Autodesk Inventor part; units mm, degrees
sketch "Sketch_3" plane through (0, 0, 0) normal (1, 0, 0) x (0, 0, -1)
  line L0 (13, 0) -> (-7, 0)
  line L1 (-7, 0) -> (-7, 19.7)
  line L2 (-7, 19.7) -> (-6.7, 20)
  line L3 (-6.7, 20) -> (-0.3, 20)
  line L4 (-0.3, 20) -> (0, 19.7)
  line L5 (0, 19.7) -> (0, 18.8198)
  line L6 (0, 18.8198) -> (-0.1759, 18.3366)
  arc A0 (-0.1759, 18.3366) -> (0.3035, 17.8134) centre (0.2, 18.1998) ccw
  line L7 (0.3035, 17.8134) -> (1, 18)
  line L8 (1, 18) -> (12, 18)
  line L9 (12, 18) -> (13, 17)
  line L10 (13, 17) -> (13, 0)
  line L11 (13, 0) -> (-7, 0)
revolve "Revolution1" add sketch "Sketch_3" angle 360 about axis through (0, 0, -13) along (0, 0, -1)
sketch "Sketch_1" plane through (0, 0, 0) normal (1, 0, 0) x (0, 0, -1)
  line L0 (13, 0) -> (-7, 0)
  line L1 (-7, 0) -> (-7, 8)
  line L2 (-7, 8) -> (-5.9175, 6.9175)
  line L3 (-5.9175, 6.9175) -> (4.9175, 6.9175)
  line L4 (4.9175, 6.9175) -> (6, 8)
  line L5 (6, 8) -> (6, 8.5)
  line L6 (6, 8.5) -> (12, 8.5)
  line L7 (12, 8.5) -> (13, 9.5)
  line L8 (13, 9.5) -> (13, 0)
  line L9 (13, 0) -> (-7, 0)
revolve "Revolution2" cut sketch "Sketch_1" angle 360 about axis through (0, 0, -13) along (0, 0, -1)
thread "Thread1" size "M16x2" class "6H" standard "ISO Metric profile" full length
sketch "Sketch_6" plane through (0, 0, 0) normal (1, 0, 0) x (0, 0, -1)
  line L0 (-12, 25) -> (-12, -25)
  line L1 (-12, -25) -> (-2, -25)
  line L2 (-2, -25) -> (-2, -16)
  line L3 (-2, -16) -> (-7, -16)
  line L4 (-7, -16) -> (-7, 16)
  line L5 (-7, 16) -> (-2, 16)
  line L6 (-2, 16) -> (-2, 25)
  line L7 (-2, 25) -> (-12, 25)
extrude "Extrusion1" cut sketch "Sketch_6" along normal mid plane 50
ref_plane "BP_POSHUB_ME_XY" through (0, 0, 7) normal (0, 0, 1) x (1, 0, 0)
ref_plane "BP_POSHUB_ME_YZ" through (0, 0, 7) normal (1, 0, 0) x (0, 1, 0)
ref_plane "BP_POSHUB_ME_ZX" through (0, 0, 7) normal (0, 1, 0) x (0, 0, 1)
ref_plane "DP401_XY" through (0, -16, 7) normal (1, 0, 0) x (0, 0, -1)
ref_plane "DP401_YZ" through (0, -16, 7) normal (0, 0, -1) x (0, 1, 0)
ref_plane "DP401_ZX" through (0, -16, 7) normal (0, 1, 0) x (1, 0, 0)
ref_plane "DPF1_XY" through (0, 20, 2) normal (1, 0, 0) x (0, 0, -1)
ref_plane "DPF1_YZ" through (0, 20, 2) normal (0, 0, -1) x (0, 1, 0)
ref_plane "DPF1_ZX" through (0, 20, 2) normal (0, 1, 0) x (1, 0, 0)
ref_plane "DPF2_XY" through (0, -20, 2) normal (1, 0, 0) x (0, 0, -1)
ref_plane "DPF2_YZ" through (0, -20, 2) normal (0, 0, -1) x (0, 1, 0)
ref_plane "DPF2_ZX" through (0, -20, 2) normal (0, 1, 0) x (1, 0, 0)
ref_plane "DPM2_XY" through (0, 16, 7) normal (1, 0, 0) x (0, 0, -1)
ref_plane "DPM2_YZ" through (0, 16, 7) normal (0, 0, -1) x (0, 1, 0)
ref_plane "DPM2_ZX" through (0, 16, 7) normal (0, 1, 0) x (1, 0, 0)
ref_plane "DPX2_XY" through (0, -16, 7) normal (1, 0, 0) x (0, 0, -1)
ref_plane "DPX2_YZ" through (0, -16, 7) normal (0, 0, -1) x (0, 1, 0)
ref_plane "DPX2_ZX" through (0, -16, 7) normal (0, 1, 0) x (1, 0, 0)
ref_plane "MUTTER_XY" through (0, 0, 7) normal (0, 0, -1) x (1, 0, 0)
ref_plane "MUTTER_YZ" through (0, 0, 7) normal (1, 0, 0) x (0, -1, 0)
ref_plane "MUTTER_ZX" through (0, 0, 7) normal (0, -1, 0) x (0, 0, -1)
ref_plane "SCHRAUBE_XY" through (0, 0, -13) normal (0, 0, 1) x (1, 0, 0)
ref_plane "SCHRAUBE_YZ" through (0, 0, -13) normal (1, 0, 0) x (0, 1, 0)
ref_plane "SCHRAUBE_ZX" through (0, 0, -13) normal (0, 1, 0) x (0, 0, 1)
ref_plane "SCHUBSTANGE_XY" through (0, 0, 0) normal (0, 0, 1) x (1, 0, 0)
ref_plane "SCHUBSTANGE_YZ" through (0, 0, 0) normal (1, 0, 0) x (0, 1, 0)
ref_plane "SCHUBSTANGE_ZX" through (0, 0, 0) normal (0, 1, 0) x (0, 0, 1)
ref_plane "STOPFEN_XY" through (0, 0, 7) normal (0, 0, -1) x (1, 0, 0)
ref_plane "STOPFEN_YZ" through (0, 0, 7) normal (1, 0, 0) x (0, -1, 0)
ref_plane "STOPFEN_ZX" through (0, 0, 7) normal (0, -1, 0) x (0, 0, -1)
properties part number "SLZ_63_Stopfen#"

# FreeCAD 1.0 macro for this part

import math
import FreeCAD as App
import Part
import Sketcher
from FreeCAD import Vector

doc = App.newDocument("Part")
body = doc.addObject("PartDesign::Body", "Body")

sketch1 = body.newObject("Sketcher::SketchObject", "Sketch")
sketch1.AttachmentSupport = (doc.getObject("YZ_Plane"), [""])
sketch1.MapMode = "FlatFace"
sketch1.addGeometry([
    Part.LineSegment(Vector(0, 7, 0), Vector(0, -13, 0)),
    Part.LineSegment(Vector(0, -13, 0), Vector(17, -13, 0)),
    Part.LineSegment(Vector(17, -13, 0), Vector(18, -12, 0)),
    Part.LineSegment(Vector(18, -12, 0), Vector(18, -1, 0)),
    Part.LineSegment(Vector(18, -1, 0), Vector(17.81, -0.3, 0)),
    Part.ArcOfCircle(Part.Circle(Vector(18.2, -0.2, 0), Vector(0, 0, 1), 0.4), math.radians(70), math.radians(195)),
    Part.LineSegment(Vector(18.34, 0.18, 0), Vector(18.82, 0, 0)),
    Part.LineSegment(Vector(18.82, 0, 0), Vector(19.7, 0, 0)),
    Part.LineSegment(Vector(19.7, 0, 0), Vector(20, 0.3, 0)),
    Part.LineSegment(Vector(20, 0.3, 0), Vector(20, 6.7, 0)),
    Part.LineSegment(Vector(20, 6.7, 0), Vector(19.7, 7, 0)),
    Part.LineSegment(Vector(19.7, 7, 0), Vector(0, 7, 0)),
], False)
sketch1.addConstraint([
    Sketcher.Constraint("Coincident", 0, 2, 1, 1),
    Sketcher.Constraint("Coincident", 1, 2, 2, 1),
    Sketcher.Constraint("Coincident", 2, 2, 3, 1),
    Sketcher.Constraint("Coincident", 3, 2, 4, 1),
    Sketcher.Constraint("Tangent", 4, 2, 5, 2),
    Sketcher.Constraint("Tangent", 5, 1, 6, 1),
    Sketcher.Constraint("Coincident", 6, 2, 7, 1),
    Sketcher.Constraint("Coincident", 7, 2, 8, 1),
    Sketcher.Constraint("Coincident", 8, 2, 9, 1),
    Sketcher.Constraint("Coincident", 9, 2, 10, 1),
    Sketcher.Constraint("Coincident", 10, 2, 11, 1),
    Sketcher.Constraint("Coincident", 11, 2, 0, 1),
    Sketcher.Constraint("Vertical", 0),
    Sketcher.Constraint("Horizontal", 1),
    Sketcher.Constraint("Vertical", 3),
    Sketcher.Constraint("Horizontal", 7),
    Sketcher.Constraint("Vertical", 9),
    Sketcher.Constraint("Horizontal", 11),
    Sketcher.Constraint("PointOnObject", 0, 2, -2),
    Sketcher.Constraint("PointOnObject", 6, 2, -1),
    Sketcher.Constraint("Parallel", 2, 8),
    Sketcher.Constraint("Perpendicular", 8, 10),
    Sketcher.Constraint("Vertical", 7, 2, 10, 2),
    Sketcher.Constraint("Equal", 8, 10),
    Sketcher.Constraint("Radius", 5, 0.4),
    Sketcher.Constraint("DistanceX", 1, 1, 1, 2, 17.0),
    Sketcher.Constraint("DistanceY", 0, 2, 0, 1, 20.0),
    Sketcher.Constraint("DistanceY", 3, 1, 3, 2, 11.0),
    Sketcher.Constraint("DistanceX", 11, 2, 11, 1, 19.7),
    Sketcher.Constraint("DistanceY", 9, 1, 9, 2, 6.4),
    Sketcher.Constraint("DistanceY", 0, 2, -1, 1, 13.0),
    Sketcher.Constraint("DistanceX", -1, 1, 2, 2, 18.0),
    Sketcher.Constraint("DistanceY", 5, 3, -1, 1, 0.2),
    Sketcher.Constraint("DistanceX", 5, 3, 6, 2, 0.62),
    Sketcher.Constraint("Distance", 4, 0.721),
])
revolution = body.newObject("PartDesign::Revolution", "Revolution")
revolution.Profile = sketch1
revolution.ReferenceAxis = (sketch1, ["V_Axis"])
revolution.Angle = 360

sketch2 = body.newObject("Sketcher::SketchObject", "Sketch001")
sketch2.AttachmentSupport = (doc.getObject("YZ_Plane"), [""])
sketch2.MapMode = "FlatFace"
sketch2.addGeometry([
    Part.LineSegment(Vector(0, 7, 0), Vector(0, -13, 0)),
    Part.LineSegment(Vector(0, -13, 0), Vector(9.5, -13, 0)),
    Part.LineSegment(Vector(9.5, -13, 0), Vector(8.5, -12, 0)),
    Part.LineSegment(Vector(8.5, -12, 0), Vector(8.5, -6, 0)),
    Part.LineSegment(Vector(8.5, -6, 0), Vector(8, -6, 0)),
    Part.LineSegment(Vector(8, -6, 0), Vector(6.9, -4.9, 0)),
    Part.LineSegment(Vector(6.9, -4.9, 0), Vector(6.9, 5.9, 0)),
    Part.LineSegment(Vector(6.9, 5.9, 0), Vector(8, 7, 0)),
    Part.LineSegment(Vector(8, 7, 0), Vector(0, 7, 0)),
], False)
sketch2.addConstraint([
    Sketcher.Constraint("Coincident", 0, 2, 1, 1),
    Sketcher.Constraint("Coincident", 1, 2, 2, 1),
    Sketcher.Constraint("Coincident", 2, 2, 3, 1),
    Sketcher.Constraint("Coincident", 3, 2, 4, 1),
    Sketcher.Constraint("Coincident", 4, 2, 5, 1),
    Sketcher.Constraint("Coincident", 5, 2, 6, 1),
    Sketcher.Constraint("Coincident", 6, 2, 7, 1),
    Sketcher.Constraint("Coincident", 7, 2, 8, 1),
    Sketcher.Constraint("Coincident", 8, 2, 0, 1),
    Sketcher.Constraint("Vertical", 0),
    Sketcher.Constraint("Horizontal", 1),
    Sketcher.Constraint("Vertical", 3),
    Sketcher.Constraint("Horizontal", 4),
    Sketcher.Constraint("Vertical", 6),
    Sketcher.Constraint("Horizontal", 8),
    Sketcher.Constraint("PointOnObject", 0, 2, -2),
    Sketcher.Constraint("Parallel", 2, 5),
    Sketcher.Constraint("Perpendicular", 5, 7),
    Sketcher.Constraint("Vertical", 4, 2, 7, 2),
    Sketcher.Constraint("Equal", 5, 7),
    Sketcher.Constraint("DistanceX", 8, 2, 8, 1, 8.0),
    Sketcher.Constraint("DistanceY", 0, 2, 0, 1, 20.0),
    Sketcher.Constraint("DistanceY", 3, 1, 3, 2, 6.0),
    Sketcher.Constraint("DistanceX", 1, 1, 1, 2, 9.5),
    Sketcher.Constraint("DistanceX", 4, 2, 4, 1, 0.5),
    Sketcher.Constraint("DistanceY", 0, 2, -1, 1, 13.0),
    Sketcher.Constraint("DistanceY", 6, 1, 6, 2, 10.835),
])
groove = body.newObject("PartDesign::Groove", "Groove")
groove.Profile = sketch2
groove.ReferenceAxis = (sketch2, ["V_Axis"])
groove.Angle = 360

sketch3 = body.newObject("Sketcher::SketchObject", "Sketch002")
sketch3.AttachmentSupport = (doc.getObject("YZ_Plane"), [""])
sketch3.MapMode = "FlatFace"
sketch3.addGeometry([
    Part.LineSegment(Vector(25, 2, 0), Vector(25, 12, 0)),
    Part.LineSegment(Vector(25, 12, 0), Vector(-25, 12, 0)),
    Part.LineSegment(Vector(-25, 12, 0), Vector(-25, 2, 0)),
    Part.LineSegment(Vector(-25, 2, 0), Vector(-16, 2, 0)),
    Part.LineSegment(Vector(-16, 2, 0), Vector(-16, 7, 0)),
    Part.LineSegment(Vector(-16, 7, 0), Vector(16, 7, 0)),
    Part.LineSegment(Vector(16, 7, 0), Vector(16, 2, 0)),
    Part.LineSegment(Vector(16, 2, 0), Vector(25, 2, 0)),
], False)
sketch3.addConstraint([
    Sketcher.Constraint("Coincident", 0, 2, 1, 1),
    Sketcher.Constraint("Coincident", 1, 2, 2, 1),
    Sketcher.Constraint("Coincident", 2, 2, 3, 1),
    Sketcher.Constraint("Coincident", 3, 2, 4, 1),
    Sketcher.Constraint("Coincident", 4, 2, 5, 1),
    Sketcher.Constraint("Coincident", 5, 2, 6, 1),
    Sketcher.Constraint("Coincident", 6, 2, 7, 1),
    Sketcher.Constraint("Coincident", 7, 2, 0, 1),
    Sketcher.Constraint("Vertical", 0),
    Sketcher.Constraint("Horizontal", 1),
    Sketcher.Constraint("Vertical", 2),
    Sketcher.Constraint("Horizontal", 3),
    Sketcher.Constraint("Vertical", 4),
    Sketcher.Constraint("Horizontal", 5),
    Sketcher.Constraint("Vertical", 6),
    Sketcher.Constraint("Horizontal", 7),
    Sketcher.Constraint("Symmetric", 3, 2, 6, 2, -2),
    Sketcher.Constraint("Equal", 3, 7),
    Sketcher.Constraint("DistanceX", 1, 2, 1, 1, 50.0),
    Sketcher.Constraint("DistanceX", 3, 1, 3, 2, 9.0),
    Sketcher.Constraint("DistanceY", 0, 1, 0, 2, 10.0),
    Sketcher.Constraint("DistanceY", 4, 1, 4, 2, 5.0),
    Sketcher.Constraint("DistanceY", -1, 1, 0, 2, 12.0),
])
pocket1 = body.newObject("PartDesign::Pocket", "Pocket")
pocket1.Profile = sketch3
pocket1.Length = 50
pocket1.Midplane = True

doc.recompute()
